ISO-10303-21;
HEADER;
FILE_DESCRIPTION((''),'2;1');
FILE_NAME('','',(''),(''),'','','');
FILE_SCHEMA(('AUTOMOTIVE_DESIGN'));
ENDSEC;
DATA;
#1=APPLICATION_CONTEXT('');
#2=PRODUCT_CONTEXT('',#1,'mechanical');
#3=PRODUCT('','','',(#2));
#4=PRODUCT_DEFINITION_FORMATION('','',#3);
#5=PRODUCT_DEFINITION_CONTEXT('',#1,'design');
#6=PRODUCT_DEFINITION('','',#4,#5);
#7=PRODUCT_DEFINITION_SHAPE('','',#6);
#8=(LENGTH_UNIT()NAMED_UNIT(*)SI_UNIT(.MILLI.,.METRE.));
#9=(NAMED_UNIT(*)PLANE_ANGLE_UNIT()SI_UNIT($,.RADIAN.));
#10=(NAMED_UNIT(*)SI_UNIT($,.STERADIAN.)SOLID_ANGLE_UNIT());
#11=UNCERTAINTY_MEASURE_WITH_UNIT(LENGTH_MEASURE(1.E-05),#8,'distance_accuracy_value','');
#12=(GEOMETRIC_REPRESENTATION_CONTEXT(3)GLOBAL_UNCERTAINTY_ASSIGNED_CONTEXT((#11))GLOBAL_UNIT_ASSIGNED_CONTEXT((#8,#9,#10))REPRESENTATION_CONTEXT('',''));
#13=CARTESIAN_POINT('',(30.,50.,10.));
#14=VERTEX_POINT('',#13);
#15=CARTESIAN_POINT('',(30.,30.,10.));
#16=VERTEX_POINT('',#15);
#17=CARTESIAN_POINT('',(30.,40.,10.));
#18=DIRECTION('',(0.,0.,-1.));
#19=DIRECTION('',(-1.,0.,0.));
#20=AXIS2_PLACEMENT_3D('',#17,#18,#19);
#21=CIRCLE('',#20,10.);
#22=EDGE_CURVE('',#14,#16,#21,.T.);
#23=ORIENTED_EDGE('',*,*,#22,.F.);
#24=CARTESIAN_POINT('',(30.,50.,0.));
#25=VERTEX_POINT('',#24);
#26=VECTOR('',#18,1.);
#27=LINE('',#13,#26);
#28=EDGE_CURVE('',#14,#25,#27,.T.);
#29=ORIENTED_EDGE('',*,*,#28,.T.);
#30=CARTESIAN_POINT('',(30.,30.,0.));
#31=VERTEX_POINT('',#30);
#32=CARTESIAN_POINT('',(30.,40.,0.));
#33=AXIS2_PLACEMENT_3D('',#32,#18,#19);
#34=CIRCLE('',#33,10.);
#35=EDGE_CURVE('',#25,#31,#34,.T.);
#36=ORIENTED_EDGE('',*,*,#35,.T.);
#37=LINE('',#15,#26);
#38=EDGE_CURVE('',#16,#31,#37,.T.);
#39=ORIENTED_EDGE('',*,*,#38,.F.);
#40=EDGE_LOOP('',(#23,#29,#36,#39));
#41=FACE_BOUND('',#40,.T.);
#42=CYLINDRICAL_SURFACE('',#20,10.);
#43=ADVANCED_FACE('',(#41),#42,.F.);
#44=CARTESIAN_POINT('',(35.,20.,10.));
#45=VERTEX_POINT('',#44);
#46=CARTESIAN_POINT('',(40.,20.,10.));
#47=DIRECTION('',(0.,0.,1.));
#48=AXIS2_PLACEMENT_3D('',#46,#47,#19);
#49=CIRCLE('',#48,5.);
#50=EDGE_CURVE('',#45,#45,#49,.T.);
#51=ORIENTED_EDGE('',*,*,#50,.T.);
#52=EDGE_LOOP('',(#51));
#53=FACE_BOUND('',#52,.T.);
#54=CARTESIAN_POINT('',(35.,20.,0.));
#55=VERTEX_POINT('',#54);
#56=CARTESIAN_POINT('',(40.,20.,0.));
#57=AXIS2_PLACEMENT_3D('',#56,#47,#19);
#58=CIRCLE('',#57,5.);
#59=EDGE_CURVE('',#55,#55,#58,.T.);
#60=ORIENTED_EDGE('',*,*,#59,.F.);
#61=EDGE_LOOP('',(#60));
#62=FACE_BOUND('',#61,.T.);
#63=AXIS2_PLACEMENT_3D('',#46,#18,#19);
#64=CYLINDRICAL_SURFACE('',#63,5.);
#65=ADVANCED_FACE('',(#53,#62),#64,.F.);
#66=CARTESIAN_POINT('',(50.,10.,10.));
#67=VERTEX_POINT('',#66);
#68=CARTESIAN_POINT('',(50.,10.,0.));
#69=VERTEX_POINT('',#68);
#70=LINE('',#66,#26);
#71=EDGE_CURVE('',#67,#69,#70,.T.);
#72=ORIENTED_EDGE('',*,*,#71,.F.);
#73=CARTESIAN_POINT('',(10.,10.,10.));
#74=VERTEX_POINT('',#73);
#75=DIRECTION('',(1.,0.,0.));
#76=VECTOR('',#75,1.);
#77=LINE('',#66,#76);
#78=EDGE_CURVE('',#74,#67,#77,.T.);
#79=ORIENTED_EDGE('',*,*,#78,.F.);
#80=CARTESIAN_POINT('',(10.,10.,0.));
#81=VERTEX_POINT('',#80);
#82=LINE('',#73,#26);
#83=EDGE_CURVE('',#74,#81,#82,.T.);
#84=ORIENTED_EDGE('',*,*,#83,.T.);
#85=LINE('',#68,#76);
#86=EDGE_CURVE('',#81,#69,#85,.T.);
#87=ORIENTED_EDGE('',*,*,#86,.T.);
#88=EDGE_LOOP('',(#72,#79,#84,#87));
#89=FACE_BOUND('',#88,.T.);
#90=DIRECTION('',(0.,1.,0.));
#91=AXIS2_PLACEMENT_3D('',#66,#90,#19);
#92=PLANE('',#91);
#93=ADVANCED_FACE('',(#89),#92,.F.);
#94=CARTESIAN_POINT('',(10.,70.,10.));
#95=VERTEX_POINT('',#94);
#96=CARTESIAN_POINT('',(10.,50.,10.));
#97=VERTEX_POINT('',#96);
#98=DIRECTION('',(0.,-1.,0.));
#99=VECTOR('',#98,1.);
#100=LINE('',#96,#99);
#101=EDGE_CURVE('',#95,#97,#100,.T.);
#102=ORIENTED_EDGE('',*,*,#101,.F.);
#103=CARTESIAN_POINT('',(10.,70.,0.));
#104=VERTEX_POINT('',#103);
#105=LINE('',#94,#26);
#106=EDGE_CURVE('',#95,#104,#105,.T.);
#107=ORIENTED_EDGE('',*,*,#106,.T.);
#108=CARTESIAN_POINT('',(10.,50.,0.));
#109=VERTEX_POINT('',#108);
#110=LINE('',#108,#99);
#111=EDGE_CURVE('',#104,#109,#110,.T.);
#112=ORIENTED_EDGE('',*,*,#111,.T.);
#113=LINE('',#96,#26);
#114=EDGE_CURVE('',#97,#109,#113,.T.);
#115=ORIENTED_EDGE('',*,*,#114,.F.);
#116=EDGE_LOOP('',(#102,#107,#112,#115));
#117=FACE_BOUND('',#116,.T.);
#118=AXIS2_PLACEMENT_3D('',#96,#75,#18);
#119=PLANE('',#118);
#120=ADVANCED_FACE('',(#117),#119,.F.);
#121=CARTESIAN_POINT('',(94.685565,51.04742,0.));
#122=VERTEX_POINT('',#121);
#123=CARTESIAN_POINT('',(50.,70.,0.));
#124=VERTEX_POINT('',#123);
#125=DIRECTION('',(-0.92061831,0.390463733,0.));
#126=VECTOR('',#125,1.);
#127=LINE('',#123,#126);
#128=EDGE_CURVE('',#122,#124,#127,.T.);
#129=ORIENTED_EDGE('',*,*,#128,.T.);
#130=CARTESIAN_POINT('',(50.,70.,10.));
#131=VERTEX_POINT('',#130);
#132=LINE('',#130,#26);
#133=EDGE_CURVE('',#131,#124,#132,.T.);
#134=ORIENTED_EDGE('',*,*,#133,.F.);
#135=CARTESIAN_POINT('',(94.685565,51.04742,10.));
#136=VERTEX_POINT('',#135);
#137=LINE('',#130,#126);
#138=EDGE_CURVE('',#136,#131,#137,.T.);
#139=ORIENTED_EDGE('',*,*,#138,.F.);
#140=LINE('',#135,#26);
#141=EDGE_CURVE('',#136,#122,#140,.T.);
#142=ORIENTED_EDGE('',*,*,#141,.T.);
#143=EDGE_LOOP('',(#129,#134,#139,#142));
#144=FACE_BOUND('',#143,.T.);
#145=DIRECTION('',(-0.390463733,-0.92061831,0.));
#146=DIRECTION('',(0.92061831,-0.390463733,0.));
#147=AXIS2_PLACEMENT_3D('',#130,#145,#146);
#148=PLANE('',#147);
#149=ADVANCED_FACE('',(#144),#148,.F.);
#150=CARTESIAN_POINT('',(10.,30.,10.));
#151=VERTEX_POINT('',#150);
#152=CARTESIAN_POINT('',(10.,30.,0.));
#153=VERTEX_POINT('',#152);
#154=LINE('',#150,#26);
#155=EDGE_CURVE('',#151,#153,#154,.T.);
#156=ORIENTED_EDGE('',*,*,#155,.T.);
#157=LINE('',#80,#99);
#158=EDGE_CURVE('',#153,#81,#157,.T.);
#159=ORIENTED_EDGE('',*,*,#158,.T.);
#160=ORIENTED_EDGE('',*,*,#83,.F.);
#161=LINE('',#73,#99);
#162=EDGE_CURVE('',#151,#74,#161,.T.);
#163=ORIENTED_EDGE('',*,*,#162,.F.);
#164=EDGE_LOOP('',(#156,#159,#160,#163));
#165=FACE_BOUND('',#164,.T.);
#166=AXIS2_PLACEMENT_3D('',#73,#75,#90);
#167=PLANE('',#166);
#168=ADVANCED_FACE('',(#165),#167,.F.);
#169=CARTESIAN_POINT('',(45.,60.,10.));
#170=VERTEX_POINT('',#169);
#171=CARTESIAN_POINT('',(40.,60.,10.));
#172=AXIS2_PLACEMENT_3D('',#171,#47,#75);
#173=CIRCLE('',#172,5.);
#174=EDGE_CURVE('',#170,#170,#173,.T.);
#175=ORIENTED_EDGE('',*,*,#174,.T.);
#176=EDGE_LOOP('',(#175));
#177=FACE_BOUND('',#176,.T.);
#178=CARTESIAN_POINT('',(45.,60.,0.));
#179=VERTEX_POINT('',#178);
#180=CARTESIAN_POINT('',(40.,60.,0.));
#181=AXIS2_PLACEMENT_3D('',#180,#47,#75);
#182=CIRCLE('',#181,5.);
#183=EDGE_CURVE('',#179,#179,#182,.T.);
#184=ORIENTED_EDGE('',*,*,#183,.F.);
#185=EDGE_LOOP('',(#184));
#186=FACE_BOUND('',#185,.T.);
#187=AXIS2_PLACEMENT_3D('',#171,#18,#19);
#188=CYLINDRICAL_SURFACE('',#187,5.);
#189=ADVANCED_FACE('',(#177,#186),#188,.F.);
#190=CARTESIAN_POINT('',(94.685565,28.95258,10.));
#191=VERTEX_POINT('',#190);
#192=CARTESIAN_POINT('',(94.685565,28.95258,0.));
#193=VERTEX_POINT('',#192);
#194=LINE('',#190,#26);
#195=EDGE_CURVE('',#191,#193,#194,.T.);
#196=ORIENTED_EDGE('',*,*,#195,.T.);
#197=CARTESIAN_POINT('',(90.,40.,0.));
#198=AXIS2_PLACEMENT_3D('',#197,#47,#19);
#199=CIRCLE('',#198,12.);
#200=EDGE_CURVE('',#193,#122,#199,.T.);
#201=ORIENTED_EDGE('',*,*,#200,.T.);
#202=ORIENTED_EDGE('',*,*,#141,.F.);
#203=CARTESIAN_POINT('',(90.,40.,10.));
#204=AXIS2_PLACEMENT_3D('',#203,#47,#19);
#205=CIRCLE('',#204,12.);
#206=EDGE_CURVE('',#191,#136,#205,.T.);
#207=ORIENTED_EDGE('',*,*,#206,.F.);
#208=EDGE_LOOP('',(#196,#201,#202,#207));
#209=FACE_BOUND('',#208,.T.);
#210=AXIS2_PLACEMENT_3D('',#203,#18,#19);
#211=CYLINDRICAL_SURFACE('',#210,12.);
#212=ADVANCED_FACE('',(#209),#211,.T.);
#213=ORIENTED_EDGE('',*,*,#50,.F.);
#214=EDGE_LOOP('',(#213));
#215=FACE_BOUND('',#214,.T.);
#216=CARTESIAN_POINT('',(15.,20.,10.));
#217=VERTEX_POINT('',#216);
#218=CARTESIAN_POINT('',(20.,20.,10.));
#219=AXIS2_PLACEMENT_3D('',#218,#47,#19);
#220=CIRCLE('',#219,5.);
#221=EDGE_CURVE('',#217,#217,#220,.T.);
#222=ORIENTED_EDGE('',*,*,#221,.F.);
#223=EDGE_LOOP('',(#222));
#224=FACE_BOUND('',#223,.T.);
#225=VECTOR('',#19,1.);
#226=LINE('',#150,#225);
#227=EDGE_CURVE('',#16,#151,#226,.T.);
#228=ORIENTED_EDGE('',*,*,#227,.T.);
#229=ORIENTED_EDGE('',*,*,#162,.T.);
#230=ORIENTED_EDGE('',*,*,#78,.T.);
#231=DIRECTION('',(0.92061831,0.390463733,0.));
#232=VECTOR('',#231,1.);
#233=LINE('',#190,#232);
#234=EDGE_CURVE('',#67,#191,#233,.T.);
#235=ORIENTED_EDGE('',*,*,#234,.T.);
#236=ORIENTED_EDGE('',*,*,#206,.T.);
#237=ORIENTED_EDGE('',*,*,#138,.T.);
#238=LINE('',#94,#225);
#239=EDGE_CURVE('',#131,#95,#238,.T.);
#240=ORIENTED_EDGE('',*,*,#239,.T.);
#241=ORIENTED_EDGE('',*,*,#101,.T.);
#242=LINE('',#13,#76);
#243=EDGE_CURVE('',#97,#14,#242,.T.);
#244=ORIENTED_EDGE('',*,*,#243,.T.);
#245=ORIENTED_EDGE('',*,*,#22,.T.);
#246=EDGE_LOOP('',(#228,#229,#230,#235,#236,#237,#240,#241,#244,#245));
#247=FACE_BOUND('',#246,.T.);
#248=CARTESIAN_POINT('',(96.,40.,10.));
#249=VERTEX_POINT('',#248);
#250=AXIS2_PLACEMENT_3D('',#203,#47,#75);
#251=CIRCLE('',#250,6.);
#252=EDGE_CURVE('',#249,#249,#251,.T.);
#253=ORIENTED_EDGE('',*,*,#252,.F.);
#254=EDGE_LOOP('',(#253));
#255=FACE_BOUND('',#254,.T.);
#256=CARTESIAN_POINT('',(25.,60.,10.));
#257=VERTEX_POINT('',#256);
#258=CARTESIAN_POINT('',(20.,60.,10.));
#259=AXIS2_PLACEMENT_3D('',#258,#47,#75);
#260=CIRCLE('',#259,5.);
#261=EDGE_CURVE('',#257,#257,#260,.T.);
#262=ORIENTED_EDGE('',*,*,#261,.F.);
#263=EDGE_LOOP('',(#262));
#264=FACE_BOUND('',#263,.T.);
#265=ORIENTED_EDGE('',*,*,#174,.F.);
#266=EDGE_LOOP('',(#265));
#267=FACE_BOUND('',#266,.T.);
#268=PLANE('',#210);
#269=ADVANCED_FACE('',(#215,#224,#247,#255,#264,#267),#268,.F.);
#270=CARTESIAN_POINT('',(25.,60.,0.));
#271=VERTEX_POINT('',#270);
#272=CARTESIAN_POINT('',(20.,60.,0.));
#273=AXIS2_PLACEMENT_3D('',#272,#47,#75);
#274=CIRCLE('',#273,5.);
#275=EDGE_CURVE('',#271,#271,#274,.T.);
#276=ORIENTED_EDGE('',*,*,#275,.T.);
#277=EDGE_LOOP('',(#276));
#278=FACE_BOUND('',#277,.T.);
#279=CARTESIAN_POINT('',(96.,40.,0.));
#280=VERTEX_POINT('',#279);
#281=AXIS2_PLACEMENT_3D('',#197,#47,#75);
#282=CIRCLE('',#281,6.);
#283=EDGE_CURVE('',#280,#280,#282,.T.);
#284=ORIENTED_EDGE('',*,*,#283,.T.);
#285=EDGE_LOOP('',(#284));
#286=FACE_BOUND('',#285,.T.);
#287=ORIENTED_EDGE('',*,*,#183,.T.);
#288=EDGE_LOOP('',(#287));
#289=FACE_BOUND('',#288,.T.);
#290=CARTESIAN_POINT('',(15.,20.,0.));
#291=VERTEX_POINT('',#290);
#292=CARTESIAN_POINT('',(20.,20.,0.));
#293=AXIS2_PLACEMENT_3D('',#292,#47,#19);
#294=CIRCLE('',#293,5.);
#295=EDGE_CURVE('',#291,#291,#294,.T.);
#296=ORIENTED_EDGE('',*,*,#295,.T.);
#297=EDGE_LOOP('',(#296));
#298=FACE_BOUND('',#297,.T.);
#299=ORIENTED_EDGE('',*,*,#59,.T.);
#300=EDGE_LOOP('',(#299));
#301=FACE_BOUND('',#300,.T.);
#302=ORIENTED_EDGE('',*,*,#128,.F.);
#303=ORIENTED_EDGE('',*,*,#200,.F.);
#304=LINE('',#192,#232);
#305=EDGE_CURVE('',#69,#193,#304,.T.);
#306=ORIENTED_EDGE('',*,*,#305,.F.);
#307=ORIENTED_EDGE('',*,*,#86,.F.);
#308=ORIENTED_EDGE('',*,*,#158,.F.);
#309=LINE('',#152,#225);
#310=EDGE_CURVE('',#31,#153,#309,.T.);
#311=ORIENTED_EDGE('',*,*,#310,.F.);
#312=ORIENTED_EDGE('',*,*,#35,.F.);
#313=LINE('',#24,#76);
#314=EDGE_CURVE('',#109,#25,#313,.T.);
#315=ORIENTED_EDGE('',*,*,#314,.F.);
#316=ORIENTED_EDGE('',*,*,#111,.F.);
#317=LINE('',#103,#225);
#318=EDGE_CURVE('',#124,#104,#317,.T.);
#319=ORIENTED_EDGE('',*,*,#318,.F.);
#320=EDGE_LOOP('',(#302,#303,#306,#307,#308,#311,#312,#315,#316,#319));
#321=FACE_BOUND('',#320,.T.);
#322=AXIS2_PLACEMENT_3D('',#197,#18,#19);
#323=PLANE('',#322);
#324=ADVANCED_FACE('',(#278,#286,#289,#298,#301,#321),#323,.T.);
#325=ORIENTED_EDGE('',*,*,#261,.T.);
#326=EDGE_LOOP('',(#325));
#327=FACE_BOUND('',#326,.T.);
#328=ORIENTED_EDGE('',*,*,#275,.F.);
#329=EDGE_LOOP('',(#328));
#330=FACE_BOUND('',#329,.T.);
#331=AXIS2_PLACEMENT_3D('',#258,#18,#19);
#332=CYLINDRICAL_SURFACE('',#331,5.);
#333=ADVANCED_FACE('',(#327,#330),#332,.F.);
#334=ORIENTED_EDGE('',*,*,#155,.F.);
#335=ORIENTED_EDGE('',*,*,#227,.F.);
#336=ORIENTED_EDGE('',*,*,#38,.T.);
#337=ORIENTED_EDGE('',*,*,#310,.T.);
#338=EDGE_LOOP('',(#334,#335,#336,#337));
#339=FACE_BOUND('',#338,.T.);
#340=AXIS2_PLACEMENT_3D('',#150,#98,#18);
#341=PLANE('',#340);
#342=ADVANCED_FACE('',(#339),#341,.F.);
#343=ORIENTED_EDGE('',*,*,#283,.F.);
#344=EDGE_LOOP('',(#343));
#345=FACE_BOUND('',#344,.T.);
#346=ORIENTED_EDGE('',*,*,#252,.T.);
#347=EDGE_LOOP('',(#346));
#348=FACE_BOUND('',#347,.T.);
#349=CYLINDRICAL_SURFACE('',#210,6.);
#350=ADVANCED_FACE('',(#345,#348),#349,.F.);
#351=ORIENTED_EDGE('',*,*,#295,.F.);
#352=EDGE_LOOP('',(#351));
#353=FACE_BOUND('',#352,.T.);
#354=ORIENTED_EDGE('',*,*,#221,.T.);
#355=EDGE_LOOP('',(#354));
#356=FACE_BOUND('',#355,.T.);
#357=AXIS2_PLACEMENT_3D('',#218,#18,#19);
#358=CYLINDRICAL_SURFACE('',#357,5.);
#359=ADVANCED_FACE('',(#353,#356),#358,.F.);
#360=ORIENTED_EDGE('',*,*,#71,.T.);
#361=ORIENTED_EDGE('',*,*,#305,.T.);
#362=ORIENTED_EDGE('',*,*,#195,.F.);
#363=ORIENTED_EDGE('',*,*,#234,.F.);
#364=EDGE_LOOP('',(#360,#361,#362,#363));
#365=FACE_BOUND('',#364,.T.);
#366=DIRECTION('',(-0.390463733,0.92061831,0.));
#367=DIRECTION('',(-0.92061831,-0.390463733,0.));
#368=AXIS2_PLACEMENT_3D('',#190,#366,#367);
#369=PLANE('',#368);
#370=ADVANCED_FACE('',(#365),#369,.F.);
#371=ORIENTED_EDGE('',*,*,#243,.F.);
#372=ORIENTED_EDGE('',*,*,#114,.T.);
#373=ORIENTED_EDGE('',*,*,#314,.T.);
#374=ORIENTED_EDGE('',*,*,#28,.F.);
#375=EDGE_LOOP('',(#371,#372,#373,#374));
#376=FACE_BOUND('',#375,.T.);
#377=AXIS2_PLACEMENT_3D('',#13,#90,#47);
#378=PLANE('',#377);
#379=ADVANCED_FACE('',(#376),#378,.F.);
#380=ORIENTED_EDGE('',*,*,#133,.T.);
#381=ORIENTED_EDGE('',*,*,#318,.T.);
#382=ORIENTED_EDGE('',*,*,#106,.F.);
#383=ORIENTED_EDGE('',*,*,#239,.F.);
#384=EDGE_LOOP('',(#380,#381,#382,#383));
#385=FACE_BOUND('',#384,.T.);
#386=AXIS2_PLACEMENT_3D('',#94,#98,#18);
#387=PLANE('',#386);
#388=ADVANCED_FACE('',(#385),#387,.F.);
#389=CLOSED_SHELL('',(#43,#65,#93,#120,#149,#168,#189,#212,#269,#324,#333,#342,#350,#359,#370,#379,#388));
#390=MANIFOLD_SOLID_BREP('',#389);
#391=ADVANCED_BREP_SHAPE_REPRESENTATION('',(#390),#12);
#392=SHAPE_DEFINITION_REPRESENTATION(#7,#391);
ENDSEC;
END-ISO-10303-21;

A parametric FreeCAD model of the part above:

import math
import FreeCAD as App
import Part
import Sketcher

doc = App.newDocument("Part")
body = doc.addObject("PartDesign::Body", "Body")

sketch1 = doc.addObject("Sketcher::SketchObject", "Sketch")
body.addObject(sketch1)
sketch1.AttachmentSupport = (doc.XY_Plane, [""])
sketch1.MapMode = "FlatFace"
sketch1.addGeometry([
    Part.LineSegment(App.Vector(50, 70, 0), App.Vector(10, 70, 0)),
    Part.LineSegment(App.Vector(10, 70, 0), App.Vector(10, 50, 0)),
    Part.LineSegment(App.Vector(10, 50, 0), App.Vector(30, 50, 0)),
    Part.ArcOfCircle(Part.Circle(App.Vector(30, 40, 0), App.Vector(0, 0, 1), 10), math.radians(-90), math.radians(90)),
    Part.LineSegment(App.Vector(30, 30, 0), App.Vector(10, 30, 0)),
    Part.LineSegment(App.Vector(10, 30, 0), App.Vector(10, 10, 0)),
    Part.LineSegment(App.Vector(10, 10, 0), App.Vector(50, 10, 0)),
    Part.LineSegment(App.Vector(50, 10, 0), App.Vector(95, 29, 0)),
    Part.ArcOfCircle(Part.Circle(App.Vector(90, 40, 0), App.Vector(0, 0, 1), 12), math.radians(-67), math.radians(67)),
    Part.LineSegment(App.Vector(95, 51, 0), App.Vector(50, 70, 0)),
    Part.Circle(App.Vector(40, 20, 0), App.Vector(0, 0, 1), 5),
    Part.Circle(App.Vector(20, 20, 0), App.Vector(0, 0, 1), 5),
    Part.Circle(App.Vector(90, 40, 0), App.Vector(0, 0, 1), 6),
    Part.Circle(App.Vector(40, 60, 0), App.Vector(0, 0, 1), 5),
    Part.Circle(App.Vector(20, 60, 0), App.Vector(0, 0, 1), 5),
], False)
sketch1.addConstraint([
    Sketcher.Constraint("Coincident", 0, 2, 1, 1),
    Sketcher.Constraint("Coincident", 1, 2, 2, 1),
    Sketcher.Constraint("Tangent", 2, 2, 3, 2),
    Sketcher.Constraint("Tangent", 3, 1, 4, 1),
    Sketcher.Constraint("Coincident", 4, 2, 5, 1),
    Sketcher.Constraint("Coincident", 5, 2, 6, 1),
    Sketcher.Constraint("Coincident", 6, 2, 7, 1),
    Sketcher.Constraint("Tangent", 7, 2, 8, 1),
    Sketcher.Constraint("Tangent", 8, 2, 9, 1),
    Sketcher.Constraint("Coincident", 9, 2, 0, 1),
    Sketcher.Constraint("Horizontal", 0),
    Sketcher.Constraint("Vertical", 1),
    Sketcher.Constraint("Horizontal", 2),
    Sketcher.Constraint("Horizontal", 4),
    Sketcher.Constraint("Vertical", 5),
    Sketcher.Constraint("Horizontal", 6),
    Sketcher.Constraint("Coincident", 12, 3, 8, 3),
    Sketcher.Constraint("Equal", 10, 11),
    Sketcher.Constraint("Equal", 11, 13),
    Sketcher.Constraint("Equal", 13, 14),
    Sketcher.Constraint("Horizontal", 3, 3, 8, 3),
    Sketcher.Constraint("Horizontal", 10, 3, 11, 3),
    Sketcher.Constraint("Horizontal", 13, 3, 14, 3),
    Sketcher.Constraint("Vertical", 10, 3, 13, 3),
    Sketcher.Constraint("Vertical", 11, 3, 14, 3),
    Sketcher.Constraint("Vertical", 1, 2, 4, 2),
    Sketcher.Constraint("Vertical", 7, 2, 8, 2),
    Sketcher.Constraint("Vertical", 6, 2, 9, 2),
    Sketcher.Constraint("Equal", 4, 1),
    Sketcher.Constraint("Diameter", 10, 10.0),
    Sketcher.Constraint("Diameter", 12, 12.0),
    Sketcher.Constraint("Radius", 3, 10.0),
    Sketcher.Constraint("Radius", 8, 12.0),
    Sketcher.Constraint("DistanceX", 0, 2, 0, 1, 40.0),
    Sketcher.Constraint("DistanceX", 2, 1, 2, 2, 20.0),
    Sketcher.Constraint("DistanceX", -1, 1, 3, 3, 30.0),
    Sketcher.Constraint("DistanceY", -1, 1, 3, 3, 40.0),
    Sketcher.Constraint("DistanceX", -1, 1, 8, 3, 90.0),
    Sketcher.Constraint("DistanceX", -1, 1, 10, 3, 40.0),
    Sketcher.Constraint("DistanceY", -1, 1, 10, 3, 20.0),
    Sketcher.Constraint("DistanceX", -1, 1, 11, 3, 20.0),
    Sketcher.Constraint("DistanceY", -1, 1, 13, 3, 60.0),
])
pad1 = doc.addObject("PartDesign::Pad", "Pad")
body.addObject(pad1)
pad1.Profile = sketch1
pad1.Length = 10

doc.recompute()
